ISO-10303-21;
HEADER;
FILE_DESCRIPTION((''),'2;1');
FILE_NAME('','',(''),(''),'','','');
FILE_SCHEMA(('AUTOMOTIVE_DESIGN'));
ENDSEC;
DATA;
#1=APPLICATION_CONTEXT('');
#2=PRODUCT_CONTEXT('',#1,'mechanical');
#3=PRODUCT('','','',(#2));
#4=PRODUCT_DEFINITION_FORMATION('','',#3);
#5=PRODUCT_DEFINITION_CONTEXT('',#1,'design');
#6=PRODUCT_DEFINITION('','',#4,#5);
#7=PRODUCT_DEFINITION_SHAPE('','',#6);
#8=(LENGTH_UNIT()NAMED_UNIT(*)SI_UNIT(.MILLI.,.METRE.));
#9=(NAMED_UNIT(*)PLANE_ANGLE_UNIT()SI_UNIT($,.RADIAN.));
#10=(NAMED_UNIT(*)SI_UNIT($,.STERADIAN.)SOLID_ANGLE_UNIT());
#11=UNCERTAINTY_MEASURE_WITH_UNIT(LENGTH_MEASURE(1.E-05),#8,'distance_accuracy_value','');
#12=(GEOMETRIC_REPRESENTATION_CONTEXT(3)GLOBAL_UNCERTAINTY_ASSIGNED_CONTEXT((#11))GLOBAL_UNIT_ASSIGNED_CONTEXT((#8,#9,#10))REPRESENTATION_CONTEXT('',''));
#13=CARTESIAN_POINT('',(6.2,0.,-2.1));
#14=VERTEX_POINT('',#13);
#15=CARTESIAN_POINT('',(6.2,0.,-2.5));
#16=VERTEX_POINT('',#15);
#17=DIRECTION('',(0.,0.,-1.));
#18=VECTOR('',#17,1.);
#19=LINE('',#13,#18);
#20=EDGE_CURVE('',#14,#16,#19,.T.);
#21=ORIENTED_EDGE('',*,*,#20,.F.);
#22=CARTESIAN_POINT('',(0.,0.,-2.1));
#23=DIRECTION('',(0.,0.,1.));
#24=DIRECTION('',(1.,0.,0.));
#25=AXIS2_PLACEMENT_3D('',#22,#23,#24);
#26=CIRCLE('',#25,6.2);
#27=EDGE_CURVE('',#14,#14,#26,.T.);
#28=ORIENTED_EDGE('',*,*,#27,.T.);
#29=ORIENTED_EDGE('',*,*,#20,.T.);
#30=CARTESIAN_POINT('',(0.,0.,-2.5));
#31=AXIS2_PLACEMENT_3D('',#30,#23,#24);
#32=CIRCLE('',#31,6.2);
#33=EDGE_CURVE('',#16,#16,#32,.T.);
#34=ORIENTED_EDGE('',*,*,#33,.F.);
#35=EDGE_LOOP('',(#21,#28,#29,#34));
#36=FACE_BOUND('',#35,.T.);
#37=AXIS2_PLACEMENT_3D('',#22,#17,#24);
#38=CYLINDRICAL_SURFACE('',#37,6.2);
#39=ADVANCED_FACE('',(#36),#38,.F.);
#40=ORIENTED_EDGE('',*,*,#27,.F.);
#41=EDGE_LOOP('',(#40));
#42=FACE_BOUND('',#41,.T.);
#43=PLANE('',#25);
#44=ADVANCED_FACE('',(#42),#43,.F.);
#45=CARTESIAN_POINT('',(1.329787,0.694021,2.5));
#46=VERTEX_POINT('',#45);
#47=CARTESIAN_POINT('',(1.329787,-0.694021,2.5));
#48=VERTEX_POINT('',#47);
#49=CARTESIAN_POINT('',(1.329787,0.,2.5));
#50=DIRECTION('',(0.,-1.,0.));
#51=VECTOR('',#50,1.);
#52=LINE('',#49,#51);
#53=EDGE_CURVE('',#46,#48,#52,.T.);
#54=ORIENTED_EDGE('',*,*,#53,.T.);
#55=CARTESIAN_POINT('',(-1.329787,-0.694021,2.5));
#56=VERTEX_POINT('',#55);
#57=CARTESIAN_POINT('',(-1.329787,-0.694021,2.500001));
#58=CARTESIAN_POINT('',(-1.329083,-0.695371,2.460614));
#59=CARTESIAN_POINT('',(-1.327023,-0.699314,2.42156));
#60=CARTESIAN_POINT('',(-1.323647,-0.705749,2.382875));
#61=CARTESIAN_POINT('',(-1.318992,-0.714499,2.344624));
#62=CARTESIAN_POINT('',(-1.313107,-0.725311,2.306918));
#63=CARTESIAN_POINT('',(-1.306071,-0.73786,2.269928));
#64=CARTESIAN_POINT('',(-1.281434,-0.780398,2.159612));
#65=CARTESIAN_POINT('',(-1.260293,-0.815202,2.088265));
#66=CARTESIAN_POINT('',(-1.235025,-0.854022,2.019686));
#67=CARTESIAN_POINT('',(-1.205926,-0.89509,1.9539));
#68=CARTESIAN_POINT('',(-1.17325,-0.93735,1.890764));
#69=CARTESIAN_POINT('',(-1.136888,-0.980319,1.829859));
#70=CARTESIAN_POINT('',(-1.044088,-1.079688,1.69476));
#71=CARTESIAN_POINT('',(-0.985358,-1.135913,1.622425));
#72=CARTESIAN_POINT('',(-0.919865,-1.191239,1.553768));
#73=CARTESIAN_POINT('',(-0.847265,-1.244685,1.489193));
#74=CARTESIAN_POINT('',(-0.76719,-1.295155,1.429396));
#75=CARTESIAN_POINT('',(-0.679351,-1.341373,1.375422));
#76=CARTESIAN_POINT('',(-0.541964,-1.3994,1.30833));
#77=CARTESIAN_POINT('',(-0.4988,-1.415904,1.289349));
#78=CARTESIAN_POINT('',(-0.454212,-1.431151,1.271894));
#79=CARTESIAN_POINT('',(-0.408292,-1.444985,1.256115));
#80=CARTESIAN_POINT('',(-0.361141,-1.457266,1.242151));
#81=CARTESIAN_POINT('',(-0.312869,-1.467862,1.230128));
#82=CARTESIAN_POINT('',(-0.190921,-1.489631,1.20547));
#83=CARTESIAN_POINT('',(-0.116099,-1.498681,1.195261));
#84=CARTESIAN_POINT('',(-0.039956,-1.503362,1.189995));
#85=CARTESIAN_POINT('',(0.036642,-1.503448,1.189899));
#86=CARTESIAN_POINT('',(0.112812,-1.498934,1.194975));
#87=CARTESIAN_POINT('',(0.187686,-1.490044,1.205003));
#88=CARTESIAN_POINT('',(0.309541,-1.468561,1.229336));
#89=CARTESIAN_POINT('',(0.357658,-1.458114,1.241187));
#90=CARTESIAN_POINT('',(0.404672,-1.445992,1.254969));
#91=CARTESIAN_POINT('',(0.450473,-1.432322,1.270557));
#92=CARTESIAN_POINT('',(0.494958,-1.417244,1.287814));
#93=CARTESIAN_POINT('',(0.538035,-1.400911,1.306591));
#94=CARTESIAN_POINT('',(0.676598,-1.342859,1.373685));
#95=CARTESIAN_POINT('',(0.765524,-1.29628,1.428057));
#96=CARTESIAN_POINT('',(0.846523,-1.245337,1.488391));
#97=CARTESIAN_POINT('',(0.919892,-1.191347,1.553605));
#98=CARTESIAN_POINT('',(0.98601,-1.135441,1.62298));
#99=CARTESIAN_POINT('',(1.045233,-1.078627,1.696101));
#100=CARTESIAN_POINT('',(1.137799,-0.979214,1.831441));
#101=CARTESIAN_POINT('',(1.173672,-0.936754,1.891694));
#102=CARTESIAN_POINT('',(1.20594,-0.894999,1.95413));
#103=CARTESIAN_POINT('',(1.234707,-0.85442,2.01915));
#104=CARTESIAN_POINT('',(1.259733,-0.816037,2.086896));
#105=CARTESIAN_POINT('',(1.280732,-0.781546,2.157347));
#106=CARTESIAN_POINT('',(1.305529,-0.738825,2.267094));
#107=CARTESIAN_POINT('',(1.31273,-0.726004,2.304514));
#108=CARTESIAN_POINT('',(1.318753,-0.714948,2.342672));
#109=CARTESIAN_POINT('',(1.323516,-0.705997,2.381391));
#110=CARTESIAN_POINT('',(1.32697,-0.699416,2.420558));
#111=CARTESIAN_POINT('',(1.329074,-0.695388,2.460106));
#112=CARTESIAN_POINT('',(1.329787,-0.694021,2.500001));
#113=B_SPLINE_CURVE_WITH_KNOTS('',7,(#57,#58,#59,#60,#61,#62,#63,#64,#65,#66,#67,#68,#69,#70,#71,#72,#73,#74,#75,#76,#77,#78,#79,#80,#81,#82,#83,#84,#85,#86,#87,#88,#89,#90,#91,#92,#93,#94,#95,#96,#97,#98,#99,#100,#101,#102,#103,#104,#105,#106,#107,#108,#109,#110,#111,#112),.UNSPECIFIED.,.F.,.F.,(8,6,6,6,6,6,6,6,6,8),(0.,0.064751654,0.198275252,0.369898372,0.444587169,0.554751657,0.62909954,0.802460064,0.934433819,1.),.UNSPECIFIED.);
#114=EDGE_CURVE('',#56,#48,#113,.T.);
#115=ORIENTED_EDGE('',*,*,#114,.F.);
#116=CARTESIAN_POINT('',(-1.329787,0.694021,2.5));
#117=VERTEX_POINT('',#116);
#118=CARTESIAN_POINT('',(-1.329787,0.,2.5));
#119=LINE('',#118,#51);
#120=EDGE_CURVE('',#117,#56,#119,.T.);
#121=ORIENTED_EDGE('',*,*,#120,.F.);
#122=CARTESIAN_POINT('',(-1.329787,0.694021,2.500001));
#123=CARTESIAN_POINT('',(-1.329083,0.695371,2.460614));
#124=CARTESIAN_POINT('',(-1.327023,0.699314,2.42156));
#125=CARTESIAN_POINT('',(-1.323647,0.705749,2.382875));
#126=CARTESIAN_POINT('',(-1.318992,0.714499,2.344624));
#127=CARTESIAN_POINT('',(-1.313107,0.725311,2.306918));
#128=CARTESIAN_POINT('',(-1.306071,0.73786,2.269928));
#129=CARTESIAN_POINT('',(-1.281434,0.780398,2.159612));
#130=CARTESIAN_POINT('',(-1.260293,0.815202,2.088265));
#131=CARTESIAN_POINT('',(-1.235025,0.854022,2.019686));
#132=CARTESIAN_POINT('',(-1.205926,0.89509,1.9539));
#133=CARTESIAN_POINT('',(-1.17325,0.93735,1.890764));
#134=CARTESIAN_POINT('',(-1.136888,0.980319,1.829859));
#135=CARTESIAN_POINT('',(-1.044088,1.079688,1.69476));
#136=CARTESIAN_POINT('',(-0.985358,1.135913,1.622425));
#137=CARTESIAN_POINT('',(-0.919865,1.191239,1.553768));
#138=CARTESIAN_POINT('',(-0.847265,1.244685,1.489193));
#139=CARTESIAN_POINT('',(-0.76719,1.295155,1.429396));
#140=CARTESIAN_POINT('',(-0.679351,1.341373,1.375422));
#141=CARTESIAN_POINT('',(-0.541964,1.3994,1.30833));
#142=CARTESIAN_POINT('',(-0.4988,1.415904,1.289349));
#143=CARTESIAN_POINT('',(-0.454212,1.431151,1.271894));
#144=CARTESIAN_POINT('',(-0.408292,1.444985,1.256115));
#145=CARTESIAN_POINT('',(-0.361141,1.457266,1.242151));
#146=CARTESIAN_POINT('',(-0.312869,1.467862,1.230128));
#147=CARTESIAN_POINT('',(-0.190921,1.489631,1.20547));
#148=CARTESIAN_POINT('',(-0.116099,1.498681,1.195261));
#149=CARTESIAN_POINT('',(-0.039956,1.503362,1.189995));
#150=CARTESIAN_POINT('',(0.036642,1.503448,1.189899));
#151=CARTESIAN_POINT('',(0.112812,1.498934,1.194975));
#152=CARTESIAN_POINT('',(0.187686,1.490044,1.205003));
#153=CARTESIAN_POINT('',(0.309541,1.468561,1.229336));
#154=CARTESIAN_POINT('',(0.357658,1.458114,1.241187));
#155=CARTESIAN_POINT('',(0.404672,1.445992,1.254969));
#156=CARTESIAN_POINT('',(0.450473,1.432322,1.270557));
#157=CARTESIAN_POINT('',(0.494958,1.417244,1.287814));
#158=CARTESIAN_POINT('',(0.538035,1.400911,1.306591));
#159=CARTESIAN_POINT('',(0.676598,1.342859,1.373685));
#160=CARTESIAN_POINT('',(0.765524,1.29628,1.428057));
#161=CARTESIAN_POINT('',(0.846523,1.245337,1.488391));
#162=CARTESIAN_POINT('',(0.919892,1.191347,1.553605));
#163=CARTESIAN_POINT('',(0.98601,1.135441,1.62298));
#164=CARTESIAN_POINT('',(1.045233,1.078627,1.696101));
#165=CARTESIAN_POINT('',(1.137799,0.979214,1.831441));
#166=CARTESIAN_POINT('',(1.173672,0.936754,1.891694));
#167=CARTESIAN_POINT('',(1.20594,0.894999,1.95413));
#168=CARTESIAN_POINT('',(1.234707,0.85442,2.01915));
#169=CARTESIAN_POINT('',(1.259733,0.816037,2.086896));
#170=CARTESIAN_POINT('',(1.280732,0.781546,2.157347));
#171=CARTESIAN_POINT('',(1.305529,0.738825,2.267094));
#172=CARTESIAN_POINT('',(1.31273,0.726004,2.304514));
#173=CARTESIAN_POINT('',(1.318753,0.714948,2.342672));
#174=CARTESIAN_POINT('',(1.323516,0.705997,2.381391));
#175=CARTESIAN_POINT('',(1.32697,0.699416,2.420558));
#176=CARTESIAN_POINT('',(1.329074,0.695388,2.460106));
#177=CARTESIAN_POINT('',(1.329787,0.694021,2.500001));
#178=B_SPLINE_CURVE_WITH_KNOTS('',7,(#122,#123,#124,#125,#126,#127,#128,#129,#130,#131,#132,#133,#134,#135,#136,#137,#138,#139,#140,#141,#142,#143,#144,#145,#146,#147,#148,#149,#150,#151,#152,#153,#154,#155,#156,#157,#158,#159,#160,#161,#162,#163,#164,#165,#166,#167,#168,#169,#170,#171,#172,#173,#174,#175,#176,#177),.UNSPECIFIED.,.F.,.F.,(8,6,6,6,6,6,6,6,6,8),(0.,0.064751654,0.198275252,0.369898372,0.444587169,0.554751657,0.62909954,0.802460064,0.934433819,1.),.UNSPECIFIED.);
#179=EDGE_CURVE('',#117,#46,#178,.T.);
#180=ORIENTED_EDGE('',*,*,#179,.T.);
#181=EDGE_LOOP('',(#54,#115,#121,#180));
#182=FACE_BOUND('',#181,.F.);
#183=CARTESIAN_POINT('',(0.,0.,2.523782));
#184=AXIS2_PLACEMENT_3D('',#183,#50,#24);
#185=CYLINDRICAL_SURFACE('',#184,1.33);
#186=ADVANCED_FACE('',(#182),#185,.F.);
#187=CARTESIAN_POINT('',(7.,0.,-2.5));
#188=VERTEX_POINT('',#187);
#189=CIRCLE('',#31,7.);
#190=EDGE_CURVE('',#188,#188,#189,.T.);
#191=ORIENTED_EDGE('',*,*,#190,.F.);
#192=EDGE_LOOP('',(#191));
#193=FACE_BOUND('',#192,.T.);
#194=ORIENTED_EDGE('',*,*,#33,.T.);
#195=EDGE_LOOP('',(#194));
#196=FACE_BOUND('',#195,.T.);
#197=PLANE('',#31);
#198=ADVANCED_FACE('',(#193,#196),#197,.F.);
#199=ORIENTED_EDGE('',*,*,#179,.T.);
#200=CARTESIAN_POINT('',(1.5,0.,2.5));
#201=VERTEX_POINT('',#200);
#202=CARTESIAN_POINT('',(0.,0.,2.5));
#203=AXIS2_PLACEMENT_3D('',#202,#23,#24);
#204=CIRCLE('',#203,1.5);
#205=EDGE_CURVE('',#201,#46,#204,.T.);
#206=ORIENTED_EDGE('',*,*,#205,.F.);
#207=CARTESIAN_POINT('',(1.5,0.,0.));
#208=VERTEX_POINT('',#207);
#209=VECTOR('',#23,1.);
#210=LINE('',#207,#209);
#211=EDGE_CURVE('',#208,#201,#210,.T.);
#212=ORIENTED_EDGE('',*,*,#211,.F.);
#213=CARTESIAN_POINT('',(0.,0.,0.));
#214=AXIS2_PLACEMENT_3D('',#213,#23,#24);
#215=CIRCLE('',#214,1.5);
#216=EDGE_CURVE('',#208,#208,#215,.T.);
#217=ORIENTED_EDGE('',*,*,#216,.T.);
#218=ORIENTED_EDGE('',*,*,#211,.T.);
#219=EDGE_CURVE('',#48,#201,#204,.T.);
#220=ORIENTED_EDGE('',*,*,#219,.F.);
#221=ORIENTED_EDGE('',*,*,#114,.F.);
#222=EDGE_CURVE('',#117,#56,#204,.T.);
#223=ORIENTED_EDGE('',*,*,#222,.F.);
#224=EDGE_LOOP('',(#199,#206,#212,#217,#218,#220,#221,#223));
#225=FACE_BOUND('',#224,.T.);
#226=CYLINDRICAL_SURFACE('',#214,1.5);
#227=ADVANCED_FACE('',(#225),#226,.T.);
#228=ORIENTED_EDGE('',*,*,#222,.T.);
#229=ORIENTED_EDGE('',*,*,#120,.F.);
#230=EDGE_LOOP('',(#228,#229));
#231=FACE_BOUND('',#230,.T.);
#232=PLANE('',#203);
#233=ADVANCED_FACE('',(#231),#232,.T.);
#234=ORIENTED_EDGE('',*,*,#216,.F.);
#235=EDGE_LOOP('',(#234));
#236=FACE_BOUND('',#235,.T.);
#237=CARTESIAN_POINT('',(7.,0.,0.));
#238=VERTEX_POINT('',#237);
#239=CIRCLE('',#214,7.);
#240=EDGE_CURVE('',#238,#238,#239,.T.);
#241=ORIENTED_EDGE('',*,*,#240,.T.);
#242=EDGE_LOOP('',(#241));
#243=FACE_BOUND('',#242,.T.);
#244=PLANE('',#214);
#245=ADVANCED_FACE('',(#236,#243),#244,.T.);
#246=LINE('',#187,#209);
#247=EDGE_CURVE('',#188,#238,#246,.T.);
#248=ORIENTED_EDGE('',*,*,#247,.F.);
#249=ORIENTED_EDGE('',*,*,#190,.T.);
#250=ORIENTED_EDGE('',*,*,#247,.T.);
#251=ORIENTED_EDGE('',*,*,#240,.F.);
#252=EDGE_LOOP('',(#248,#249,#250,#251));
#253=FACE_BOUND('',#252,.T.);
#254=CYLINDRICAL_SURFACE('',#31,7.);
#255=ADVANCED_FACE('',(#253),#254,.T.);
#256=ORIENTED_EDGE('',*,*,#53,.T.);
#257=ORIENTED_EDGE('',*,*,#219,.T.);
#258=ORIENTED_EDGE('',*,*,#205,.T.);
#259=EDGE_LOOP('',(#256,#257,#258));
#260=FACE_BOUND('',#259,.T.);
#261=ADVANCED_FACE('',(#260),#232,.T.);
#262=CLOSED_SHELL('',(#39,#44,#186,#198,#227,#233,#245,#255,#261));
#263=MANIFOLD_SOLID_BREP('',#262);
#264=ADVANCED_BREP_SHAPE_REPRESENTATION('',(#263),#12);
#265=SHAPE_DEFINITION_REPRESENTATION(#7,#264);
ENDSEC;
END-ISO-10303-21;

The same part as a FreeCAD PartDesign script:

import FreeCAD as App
import Part
import Sketcher
from FreeCAD import Vector


def add_polygon(sketch, points):
    """Adds a closed chain of lines whose ends are joined by coincident constraints."""
    first, n = sketch.GeometryCount, len(points)
    for a, b in zip(points, points[1:] + points[:1]):
        sketch.addGeometry(Part.LineSegment(App.Vector(*a, 0), App.Vector(*b, 0)), False)
    for i in range(n):
        sketch.addConstraint(Sketcher.Constraint("Coincident", first + i, 2, first + (i + 1) % n, 1))

doc = App.newDocument("Part")
body = doc.addObject("PartDesign::Body", "Body")

# Sketch on XZ plane
sketch1 = body.newObject("Sketcher::SketchObject", "Sketch")
sketch1.AttachmentSupport = (doc.getObject("XZ_Plane"), [""])
sketch1.MapMode = "FlatFace"
add_polygon(sketch1, [(7, 0), (1.5, 0), (1.5, 2.5), (0, 2.5), (0, -2.1), (6.2, -2.1), (6.2, -2.5), (7, -2.5)])  # lines 0-7
sketch1.addConstraint(Sketcher.Constraint("Horizontal", 0))
sketch1.addConstraint(Sketcher.Constraint("Vertical", 1))
sketch1.addConstraint(Sketcher.Constraint("Horizontal", 2))
sketch1.addConstraint(Sketcher.Constraint("Vertical", 3))
sketch1.addConstraint(Sketcher.Constraint("Horizontal", 4))
sketch1.addConstraint(Sketcher.Constraint("Vertical", 5))
sketch1.addConstraint(Sketcher.Constraint("Horizontal", 6))
sketch1.addConstraint(Sketcher.Constraint("Vertical", 7))
sketch1.addConstraint(Sketcher.Constraint("PointOnObject", 0, 2, -1))
sketch1.addConstraint(Sketcher.Constraint("PointOnObject", 2, 2, -2))
sketch1.addConstraint(Sketcher.Constraint("Equal", 1, 7))
sketch1.addConstraint(Sketcher.Constraint("DistanceX", 0, 2, 0, 1, 5.5))
sketch1.addConstraint(Sketcher.Constraint("DistanceX", 2, 2, 2, 1, 1.5))
sketch1.addConstraint(Sketcher.Constraint("DistanceX", 4, 1, 4, 2, 6.2))
sketch1.addConstraint(Sketcher.Constraint("DistanceY", 1, 1, 1, 2, 2.5))
sketch1.addConstraint(Sketcher.Constraint("DistanceY", 3, 2, 3, 1, 4.6))
revolution = body.newObject("PartDesign::Revolution", "Revolution")
revolution.Profile = sketch1
revolution.ReferenceAxis = (sketch1, ["V_Axis"])
revolution.Angle = 360

# Sketch on XZ plane
sketch2 = body.newObject("Sketcher::SketchObject", "Sketch001")
sketch2.AttachmentSupport = (doc.getObject("XZ_Plane"), [""])
sketch2.MapMode = "FlatFace"
sketch2.addGeometry(Part.Circle(Vector(0, 2.5, 0), Vector(0, 0, 1), 1.3), False)
sketch2.addConstraint(Sketcher.Constraint("PointOnObject", 0, 3, -2))
sketch2.addConstraint(Sketcher.Constraint("Diameter", 0, 2.66))
sketch2.addConstraint(Sketcher.Constraint("DistanceY", -1, 1, 0, 3, 2.523782))
pocket1 = body.newObject("PartDesign::Pocket", "Pocket")
pocket1.Profile = sketch2
pocket1.Length = 25
pocket1.Midplane = True

doc.recompute()
